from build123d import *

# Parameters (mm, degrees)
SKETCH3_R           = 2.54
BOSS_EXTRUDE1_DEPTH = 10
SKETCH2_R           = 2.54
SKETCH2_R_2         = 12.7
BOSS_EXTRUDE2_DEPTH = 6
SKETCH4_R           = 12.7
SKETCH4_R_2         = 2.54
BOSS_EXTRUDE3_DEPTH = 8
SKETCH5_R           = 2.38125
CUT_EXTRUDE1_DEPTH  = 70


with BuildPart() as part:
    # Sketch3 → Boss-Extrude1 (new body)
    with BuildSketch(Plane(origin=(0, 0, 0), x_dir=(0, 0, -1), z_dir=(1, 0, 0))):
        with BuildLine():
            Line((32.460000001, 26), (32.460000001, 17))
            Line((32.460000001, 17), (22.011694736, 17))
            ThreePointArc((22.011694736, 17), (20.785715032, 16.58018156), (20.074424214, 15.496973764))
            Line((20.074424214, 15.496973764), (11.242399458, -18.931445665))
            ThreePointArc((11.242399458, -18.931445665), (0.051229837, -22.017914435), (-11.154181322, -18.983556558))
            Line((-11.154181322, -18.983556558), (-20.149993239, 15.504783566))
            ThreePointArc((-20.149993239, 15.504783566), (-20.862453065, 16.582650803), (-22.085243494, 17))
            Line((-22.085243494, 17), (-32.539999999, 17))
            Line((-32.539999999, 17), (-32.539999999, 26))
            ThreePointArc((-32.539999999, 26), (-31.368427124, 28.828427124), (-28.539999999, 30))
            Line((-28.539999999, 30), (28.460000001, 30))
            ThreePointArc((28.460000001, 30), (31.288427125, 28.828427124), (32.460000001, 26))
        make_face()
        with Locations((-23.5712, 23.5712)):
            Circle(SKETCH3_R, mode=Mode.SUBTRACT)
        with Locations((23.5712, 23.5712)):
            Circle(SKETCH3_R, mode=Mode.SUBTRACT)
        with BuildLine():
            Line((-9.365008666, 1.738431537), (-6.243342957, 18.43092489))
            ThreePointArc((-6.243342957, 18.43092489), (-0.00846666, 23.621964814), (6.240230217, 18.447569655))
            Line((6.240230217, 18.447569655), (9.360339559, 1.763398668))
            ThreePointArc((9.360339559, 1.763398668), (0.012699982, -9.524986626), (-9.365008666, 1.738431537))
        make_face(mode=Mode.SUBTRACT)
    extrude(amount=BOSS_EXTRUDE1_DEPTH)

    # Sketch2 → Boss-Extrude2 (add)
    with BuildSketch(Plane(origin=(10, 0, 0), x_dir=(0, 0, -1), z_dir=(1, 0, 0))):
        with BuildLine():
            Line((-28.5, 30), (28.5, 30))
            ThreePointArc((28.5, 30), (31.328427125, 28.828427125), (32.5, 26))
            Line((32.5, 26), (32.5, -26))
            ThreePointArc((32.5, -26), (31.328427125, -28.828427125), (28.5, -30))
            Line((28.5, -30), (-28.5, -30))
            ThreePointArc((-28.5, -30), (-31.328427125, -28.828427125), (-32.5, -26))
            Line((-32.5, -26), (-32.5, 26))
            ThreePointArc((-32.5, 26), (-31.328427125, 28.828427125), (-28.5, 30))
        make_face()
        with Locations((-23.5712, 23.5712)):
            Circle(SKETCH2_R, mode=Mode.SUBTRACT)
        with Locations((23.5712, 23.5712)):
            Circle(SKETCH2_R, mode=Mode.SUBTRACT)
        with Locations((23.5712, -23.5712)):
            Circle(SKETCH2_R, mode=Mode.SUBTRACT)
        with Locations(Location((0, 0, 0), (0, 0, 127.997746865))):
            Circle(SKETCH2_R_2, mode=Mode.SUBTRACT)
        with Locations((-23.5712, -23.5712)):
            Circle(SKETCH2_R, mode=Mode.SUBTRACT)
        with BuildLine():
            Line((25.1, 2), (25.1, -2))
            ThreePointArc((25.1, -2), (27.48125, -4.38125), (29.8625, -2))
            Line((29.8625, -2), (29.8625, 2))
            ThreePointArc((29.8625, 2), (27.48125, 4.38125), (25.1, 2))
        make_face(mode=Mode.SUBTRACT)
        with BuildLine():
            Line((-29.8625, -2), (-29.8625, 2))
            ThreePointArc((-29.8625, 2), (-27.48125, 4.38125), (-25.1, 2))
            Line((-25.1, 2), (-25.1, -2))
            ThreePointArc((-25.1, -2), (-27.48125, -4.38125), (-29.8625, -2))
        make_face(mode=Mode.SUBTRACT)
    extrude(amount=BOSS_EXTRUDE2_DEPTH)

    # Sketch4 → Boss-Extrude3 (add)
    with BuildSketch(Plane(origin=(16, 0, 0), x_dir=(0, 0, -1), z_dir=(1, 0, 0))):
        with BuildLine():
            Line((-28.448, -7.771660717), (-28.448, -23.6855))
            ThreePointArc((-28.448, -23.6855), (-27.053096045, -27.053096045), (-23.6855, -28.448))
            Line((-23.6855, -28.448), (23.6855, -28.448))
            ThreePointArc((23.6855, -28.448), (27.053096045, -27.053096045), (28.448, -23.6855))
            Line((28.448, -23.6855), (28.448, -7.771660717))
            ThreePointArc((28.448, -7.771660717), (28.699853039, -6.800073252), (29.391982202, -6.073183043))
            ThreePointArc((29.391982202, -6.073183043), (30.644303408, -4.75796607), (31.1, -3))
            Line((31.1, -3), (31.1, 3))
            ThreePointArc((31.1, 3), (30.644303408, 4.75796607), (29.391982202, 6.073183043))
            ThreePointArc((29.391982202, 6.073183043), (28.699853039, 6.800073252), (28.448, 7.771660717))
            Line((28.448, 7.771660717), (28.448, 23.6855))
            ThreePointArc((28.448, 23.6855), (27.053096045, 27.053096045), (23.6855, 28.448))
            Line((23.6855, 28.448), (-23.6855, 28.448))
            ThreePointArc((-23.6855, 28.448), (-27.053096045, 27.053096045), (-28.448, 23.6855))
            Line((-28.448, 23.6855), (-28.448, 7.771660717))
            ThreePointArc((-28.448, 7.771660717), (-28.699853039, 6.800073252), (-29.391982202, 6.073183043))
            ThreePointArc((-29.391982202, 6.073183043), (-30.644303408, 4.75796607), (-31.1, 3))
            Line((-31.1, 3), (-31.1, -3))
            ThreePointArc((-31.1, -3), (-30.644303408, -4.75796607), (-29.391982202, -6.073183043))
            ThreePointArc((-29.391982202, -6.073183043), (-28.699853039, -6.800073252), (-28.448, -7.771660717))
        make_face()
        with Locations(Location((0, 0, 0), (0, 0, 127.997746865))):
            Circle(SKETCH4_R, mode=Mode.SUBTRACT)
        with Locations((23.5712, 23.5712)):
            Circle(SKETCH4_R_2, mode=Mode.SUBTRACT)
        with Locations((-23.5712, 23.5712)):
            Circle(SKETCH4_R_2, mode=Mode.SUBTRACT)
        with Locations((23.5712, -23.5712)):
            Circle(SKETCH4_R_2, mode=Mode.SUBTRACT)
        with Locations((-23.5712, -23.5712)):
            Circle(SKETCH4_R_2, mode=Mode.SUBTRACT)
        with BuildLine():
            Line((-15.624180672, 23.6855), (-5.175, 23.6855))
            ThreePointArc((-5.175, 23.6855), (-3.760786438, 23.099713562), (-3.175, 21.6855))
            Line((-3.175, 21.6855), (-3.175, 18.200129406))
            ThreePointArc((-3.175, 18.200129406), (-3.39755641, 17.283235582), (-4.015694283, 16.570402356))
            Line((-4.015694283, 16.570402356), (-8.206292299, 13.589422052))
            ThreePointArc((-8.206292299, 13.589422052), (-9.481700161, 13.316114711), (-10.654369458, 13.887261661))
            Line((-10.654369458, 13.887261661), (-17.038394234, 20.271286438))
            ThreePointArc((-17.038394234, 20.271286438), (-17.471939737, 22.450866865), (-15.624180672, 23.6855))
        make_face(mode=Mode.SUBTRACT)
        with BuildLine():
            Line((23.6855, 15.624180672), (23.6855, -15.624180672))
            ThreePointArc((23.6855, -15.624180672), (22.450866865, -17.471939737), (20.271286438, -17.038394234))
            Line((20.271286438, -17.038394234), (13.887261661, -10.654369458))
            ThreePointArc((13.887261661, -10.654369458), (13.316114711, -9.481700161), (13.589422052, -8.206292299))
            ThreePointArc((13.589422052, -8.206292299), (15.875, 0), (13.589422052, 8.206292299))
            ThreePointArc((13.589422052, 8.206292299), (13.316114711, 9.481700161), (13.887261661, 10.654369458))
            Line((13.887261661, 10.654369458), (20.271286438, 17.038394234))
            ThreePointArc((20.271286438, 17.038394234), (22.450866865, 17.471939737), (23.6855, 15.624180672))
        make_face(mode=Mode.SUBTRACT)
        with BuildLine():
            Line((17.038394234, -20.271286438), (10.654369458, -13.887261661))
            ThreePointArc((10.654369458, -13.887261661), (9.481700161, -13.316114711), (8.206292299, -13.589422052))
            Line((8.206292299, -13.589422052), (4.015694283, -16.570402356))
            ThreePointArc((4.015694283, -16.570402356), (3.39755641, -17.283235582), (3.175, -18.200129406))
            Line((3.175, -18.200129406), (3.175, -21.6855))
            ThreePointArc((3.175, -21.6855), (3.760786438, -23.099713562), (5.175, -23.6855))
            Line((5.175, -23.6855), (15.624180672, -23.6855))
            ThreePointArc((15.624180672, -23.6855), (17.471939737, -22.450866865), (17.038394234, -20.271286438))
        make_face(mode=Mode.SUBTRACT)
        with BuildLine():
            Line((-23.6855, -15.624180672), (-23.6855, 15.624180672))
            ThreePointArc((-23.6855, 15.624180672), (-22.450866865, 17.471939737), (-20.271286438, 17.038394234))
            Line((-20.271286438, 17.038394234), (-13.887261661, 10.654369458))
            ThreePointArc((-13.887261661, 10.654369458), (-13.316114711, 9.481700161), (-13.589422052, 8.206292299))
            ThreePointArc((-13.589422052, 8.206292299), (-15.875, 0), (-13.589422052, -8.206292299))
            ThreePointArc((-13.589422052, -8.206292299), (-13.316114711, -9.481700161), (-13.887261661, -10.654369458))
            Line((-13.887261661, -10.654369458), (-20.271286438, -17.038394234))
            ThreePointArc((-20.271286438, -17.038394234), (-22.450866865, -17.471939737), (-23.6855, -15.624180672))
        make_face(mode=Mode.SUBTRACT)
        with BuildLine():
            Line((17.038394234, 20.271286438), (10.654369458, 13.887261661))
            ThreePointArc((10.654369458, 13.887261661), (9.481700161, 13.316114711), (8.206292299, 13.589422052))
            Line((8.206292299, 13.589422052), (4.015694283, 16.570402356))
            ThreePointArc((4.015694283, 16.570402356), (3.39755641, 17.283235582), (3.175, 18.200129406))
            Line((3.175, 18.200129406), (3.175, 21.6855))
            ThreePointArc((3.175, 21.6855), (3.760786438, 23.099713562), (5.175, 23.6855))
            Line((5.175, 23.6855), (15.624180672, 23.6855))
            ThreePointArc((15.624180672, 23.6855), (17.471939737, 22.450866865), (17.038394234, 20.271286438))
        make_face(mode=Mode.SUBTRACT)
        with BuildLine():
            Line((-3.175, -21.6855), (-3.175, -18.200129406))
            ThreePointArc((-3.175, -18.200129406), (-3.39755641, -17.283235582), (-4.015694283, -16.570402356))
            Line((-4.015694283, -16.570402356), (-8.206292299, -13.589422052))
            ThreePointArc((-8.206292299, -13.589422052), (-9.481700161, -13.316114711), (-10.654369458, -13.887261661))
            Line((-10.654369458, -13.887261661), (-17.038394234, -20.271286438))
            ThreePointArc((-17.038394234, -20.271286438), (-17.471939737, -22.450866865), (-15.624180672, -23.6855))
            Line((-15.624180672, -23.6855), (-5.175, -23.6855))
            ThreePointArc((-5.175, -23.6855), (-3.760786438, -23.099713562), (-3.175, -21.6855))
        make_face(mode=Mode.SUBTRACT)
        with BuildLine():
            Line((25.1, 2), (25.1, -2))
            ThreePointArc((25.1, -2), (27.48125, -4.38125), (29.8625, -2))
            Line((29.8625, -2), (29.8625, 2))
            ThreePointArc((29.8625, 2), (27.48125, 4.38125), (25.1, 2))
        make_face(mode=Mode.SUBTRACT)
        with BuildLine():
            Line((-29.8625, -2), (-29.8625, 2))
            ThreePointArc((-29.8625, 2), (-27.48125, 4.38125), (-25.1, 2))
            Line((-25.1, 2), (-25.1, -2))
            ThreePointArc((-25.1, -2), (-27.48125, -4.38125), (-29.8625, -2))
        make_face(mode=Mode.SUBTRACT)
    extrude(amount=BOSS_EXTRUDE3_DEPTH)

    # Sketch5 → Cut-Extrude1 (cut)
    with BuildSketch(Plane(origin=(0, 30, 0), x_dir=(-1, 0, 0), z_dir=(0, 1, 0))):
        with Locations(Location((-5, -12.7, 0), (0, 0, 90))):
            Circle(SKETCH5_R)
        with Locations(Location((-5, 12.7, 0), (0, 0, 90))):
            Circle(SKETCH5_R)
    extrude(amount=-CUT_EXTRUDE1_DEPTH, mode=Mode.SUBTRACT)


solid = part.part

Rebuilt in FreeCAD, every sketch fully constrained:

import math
import FreeCAD as App
import Part
import Sketcher
Q = App.Units.Quantity

doc = App.newDocument("Part")
body = doc.addObject("PartDesign::Body", "Body")

# Sketch on YZ plane
sketch1 = body.newObject("Sketcher::SketchObject", "Sketch")
sketch1.AttachmentSupport = (doc.getObject("YZ_Plane"), [""])
sketch1.MapMode = "FlatFace"
sketch1.addGeometry([
    Part.LineSegment(App.Vector(17, -32.5, 0), App.Vector(26, -32.5, 0)),  # 0
    Part.ArcOfCircle(Part.Circle(App.Vector(26, -28.5, 0), App.Vector(0, 0, 1), 4), math.radians(-90), math.radians(0)),  # 1
    Part.LineSegment(App.Vector(30, -28.5, 0), App.Vector(30, 28.5, 0)),  # 2
    Part.ArcOfCircle(Part.Circle(App.Vector(26, 28.5, 0), App.Vector(0, 0, 1), 4), math.radians(0), math.radians(90)),  # 3
    Part.LineSegment(App.Vector(26, 32.5, 0), App.Vector(17, 32.5, 0)),  # 4
    Part.LineSegment(App.Vector(17, 32.5, 0), App.Vector(17, 22.1, 0)),  # 5
    Part.ArcOfCircle(Part.Circle(App.Vector(15, 22.1, 0), App.Vector(0, 0, 1), 2), math.radians(-75), math.radians(0)),  # 6
    Part.LineSegment(App.Vector(15.5, 20.1, 0), App.Vector(-19, 11.2, 0)),  # 7
    Part.ArcOfCircle(Part.Circle(App.Vector(0, 0, 0), App.Vector(0, 0, 1), 22), math.radians(150), math.radians(211)),  # 8
    Part.LineSegment(App.Vector(-18.9, -11.2, 0), App.Vector(15.5, -20.1, 0)),  # 9
    Part.ArcOfCircle(Part.Circle(App.Vector(15, -22, 0), App.Vector(0, 0, 1), 2), math.radians(0), math.radians(76)),  # 10
    Part.LineSegment(App.Vector(17, -22, 0), App.Vector(17, -32.5, 0)),  # 11
    Part.LineSegment(App.Vector(1.7, 9.4, 0), App.Vector(18.4, 6.2, 0)),  # 12
    Part.ArcOfCircle(Part.Circle(App.Vector(17.3, 0, 0), App.Vector(0, 0, 1), 6.4), math.radians(-79), math.radians(79)),  # 13
    Part.LineSegment(App.Vector(18.4, -6.2, 0), App.Vector(1.8, -9.4, 0)),  # 14
    Part.ArcOfCircle(Part.Circle(App.Vector(0, 0, 0), App.Vector(0, 0, 1), 9.5), math.radians(79), math.radians(281)),  # 15
    Part.Circle(App.Vector(23.6, -23.6, 0), App.Vector(0, 0, 1), 2.5),  # 16
    Part.Circle(App.Vector(23.6, 23.6, 0), App.Vector(0, 0, 1), 2.5),  # 17
], False)
sketch1.addConstraint([
    Sketcher.Constraint("Tangent", 0, 2, 1, 1),
    Sketcher.Constraint("Tangent", 1, 2, 2, 1),
    Sketcher.Constraint("Tangent", 2, 2, 3, 1),
    Sketcher.Constraint("Tangent", 3, 2, 4, 1),
    Sketcher.Constraint("Coincident", 4, 2, 5, 1),
    Sketcher.Constraint("Tangent", 5, 2, 6, 2),
    Sketcher.Constraint("Tangent", 6, 1, 7, 1),
    Sketcher.Constraint("Coincident", 7, 2, 8, 1),
    Sketcher.Constraint("Coincident", 8, 2, 9, 1),
    Sketcher.Constraint("Tangent", 9, 2, 10, 2),
    Sketcher.Constraint("Tangent", 10, 1, 11, 1),
    Sketcher.Constraint("Coincident", 11, 2, 0, 1),
    Sketcher.Constraint("Coincident", 12, 2, 13, 2),
    Sketcher.Constraint("Coincident", 13, 1, 14, 1),
    Sketcher.Constraint("Coincident", 14, 2, 15, 2),
    Sketcher.Constraint("Coincident", 15, 1, 12, 1),
    Sketcher.Constraint("Horizontal", 0),
    Sketcher.Constraint("Vertical", 2),
    Sketcher.Constraint("Horizontal", 4),
    Sketcher.Constraint("Vertical", 5),
    Sketcher.Constraint("Vertical", 11),
    Sketcher.Constraint("Coincident", 8, 3, -1, 1),
    Sketcher.Constraint("Coincident", 15, 3, -1, 1),
    Sketcher.Constraint("Equal", 1, 3),
    Sketcher.Constraint("Equal", 6, 10),
    Sketcher.Constraint("Equal", 16, 17),
    Sketcher.Constraint("Symmetric", 16, 3, 17, 3, -1),
    Sketcher.Constraint("PointOnObject", 13, 3, -1),
    Sketcher.Constraint("Vertical", 6, 3, 10, 3),
    Sketcher.Constraint("Radius", 1, Q("4 mm")),
    Sketcher.Constraint("Radius", 6, Q("2 mm")),
    Sketcher.Constraint("Diameter", 16, Q("5.08 mm")),
    Sketcher.Constraint("DistanceX", 0, 1, 0, 2, Q("9 mm")),
    Sketcher.Constraint("DistanceY", 2, 1, 2, 2, Q("57 mm")),
    Sketcher.Constraint("Radius", 13, Q("6.350001 mm")),
    Sketcher.Constraint("DistanceX", -1, 1, 1, 3, Q("26 mm")),
    Sketcher.Constraint("DistanceY", 1, 3, -1, 1, Q("28.46 mm")),
    Sketcher.Constraint("Radius", 8, Q("22.017974 mm")),
    Sketcher.Constraint("Radius", 15, Q("9.524995 mm")),
    Sketcher.Constraint("DistanceX", -1, 1, 16, 3, Q("23.5712 mm")),
    Sketcher.Constraint("DistanceY", 16, 3, -1, 1, Q("23.5712 mm")),
    Sketcher.Constraint("DistanceY", 8, 2, -1, 1, Q("11.242399 mm")),
    Sketcher.Constraint("DistanceX", -1, 1, 14, 2, Q("1.763399 mm")),
    Sketcher.Constraint("DistanceY", 12, 2, 5, 2, Q("15.841901 mm")),
    Sketcher.Constraint("DistanceX", 13, 3, 13, 1, Q("1.1756 mm")),
    Sketcher.Constraint("Distance", 14, Q("16.97341 mm")),
    Sketcher.Constraint("DistanceY", 5, 2, 5, 1, Q("10.454757 mm")),
    Sketcher.Constraint("DistanceY", 11, 2, 11, 1, Q("10.448305 mm")),
    Sketcher.Constraint("DistanceY", -1, 1, 7, 2, Q("11.154181 mm")),
    Sketcher.Constraint("DistanceX", -1, 1, 15, 1, Q("1.738432 mm")),
])
pad1 = body.newObject("PartDesign::Pad", "Pad")
pad1.Profile = sketch1
pad1.Length = 10

# Sketch on YZ plane
sketch2 = body.newObject("Sketcher::SketchObject", "Sketch001")
sketch2.AttachmentSupport = (doc.getObject("YZ_Plane"), [""])
sketch2.MapMode = "FlatFace"
sketch2.AttachmentOffset = App.Placement(App.Vector(0, 0, 10), App.Rotation())
sketch2.addGeometry([
    Part.LineSegment(App.Vector(30, -28.5, 0), App.Vector(30, 28.5, 0)),  # 0
    Part.ArcOfCircle(Part.Circle(App.Vector(26, 28.5, 0), App.Vector(0, 0, 1), 4), math.radians(0), math.radians(90)),  # 1
    Part.LineSegment(App.Vector(26, 32.5, 0), App.Vector(-26, 32.5, 0)),  # 2
    Part.ArcOfCircle(Part.Circle(App.Vector(-26, 28.5, 0), App.Vector(0, 0, 1), 4), math.radians(90), math.radians(180)),  # 3
    Part.LineSegment(App.Vector(-30, 28.5, 0), App.Vector(-30, -28.5, 0)),  # 4
    Part.ArcOfCircle(Part.Circle(App.Vector(-26, -28.5, 0), App.Vector(0, 0, 1), 4), math.radians(180), math.radians(270)),  # 5
    Part.LineSegment(App.Vector(-26, -32.5, 0), App.Vector(26, -32.5, 0)),  # 6
    Part.ArcOfCircle(Part.Circle(App.Vector(26, -28.5, 0), App.Vector(0, 0, 1), 4), math.radians(-90), math.radians(0)),  # 7
    Part.Circle(App.Vector(-23.6, -23.6, 0), App.Vector(0, 0, 1), 2.5),  # 8
    Part.ArcOfCircle(Part.Circle(App.Vector(2, -27.5, 0), App.Vector(0, 0, 1), 2.4), math.radians(-90), math.radians(90)),  # 9
    Part.LineSegment(App.Vector(2, -29.9, 0), App.Vector(-2, -29.9, 0)),  # 10
    Part.ArcOfCircle(Part.Circle(App.Vector(-2, -27.5, 0), App.Vector(0, 0, 1), 2.4), math.radians(90), math.radians(270)),  # 11
    Part.LineSegment(App.Vector(-2, -25.1, 0), App.Vector(2, -25.1, 0)),  # 12
    Part.Circle(App.Vector(0, 0, 0), App.Vector(0, 0, 1), 12.7),  # 13
    Part.Circle(App.Vector(-23.6, 23.6, 0), App.Vector(0, 0, 1), 2.5),  # 14
    Part.LineSegment(App.Vector(-2, 29.9, 0), App.Vector(2, 29.9, 0)),  # 15
    Part.ArcOfCircle(Part.Circle(App.Vector(2, 27.5, 0), App.Vector(0, 0, 1), 2.4), math.radians(-90), math.radians(90)),  # 16
    Part.LineSegment(App.Vector(2, 25.1, 0), App.Vector(-2, 25.1, 0)),  # 17
    Part.ArcOfCircle(Part.Circle(App.Vector(-2, 27.5, 0), App.Vector(0, 0, 1), 2.4), math.radians(90), math.radians(270)),  # 18
    Part.Circle(App.Vector(23.6, -23.6, 0), App.Vector(0, 0, 1), 2.5),  # 19
    Part.Circle(App.Vector(23.6, 23.6, 0), App.Vector(0, 0, 1), 2.5),  # 20
], False)
sketch2.addConstraint([
    Sketcher.Constraint("Tangent", 0, 2, 1, 1),
    Sketcher.Constraint("Tangent", 1, 2, 2, 1),
    Sketcher.Constraint("Tangent", 2, 2, 3, 1),
    Sketcher.Constraint("Tangent", 3, 2, 4, 1),
    Sketcher.Constraint("Tangent", 4, 2, 5, 1),
    Sketcher.Constraint("Tangent", 5, 2, 6, 1),
    Sketcher.Constraint("Tangent", 6, 2, 7, 1),
    Sketcher.Constraint("Tangent", 7, 2, 0, 1),
    Sketcher.Constraint("Tangent", 9, 1, 10, 1),
    Sketcher.Constraint("Tangent", 10, 2, 11, 2),
    Sketcher.Constraint("Tangent", 11, 1, 12, 1),
    Sketcher.Constraint("Tangent", 12, 2, 9, 2),
    Sketcher.Constraint("Tangent", 15, 2, 16, 2),
    Sketcher.Constraint("Tangent", 16, 1, 17, 1),
    Sketcher.Constraint("Tangent", 17, 2, 18, 2),
    Sketcher.Constraint("Tangent", 18, 1, 15, 1),
    Sketcher.Constraint("Vertical", 0),
    Sketcher.Constraint("Horizontal", 2),
    Sketcher.Constraint("Vertical", 4),
    Sketcher.Constraint("Horizontal", 6),
    Sketcher.Constraint("Horizontal", 10),
    Sketcher.Constraint("Horizontal", 12),
    Sketcher.Constraint("Horizontal", 15),
    Sketcher.Constraint("Horizontal", 17),
    Sketcher.Constraint("Coincident", 13, 3, -1, 1),
    Sketcher.Constraint("Equal", 1, 3),
    Sketcher.Constraint("Equal", 3, 5),
    Sketcher.Constraint("Equal", 5, 7),
    Sketcher.Constraint("Equal", 8, 14),
    Sketcher.Constraint("Equal", 11, 16),
    Sketcher.Constraint("Equal", 14, 19),
    Sketcher.Constraint("Equal", 19, 20),
    Sketcher.Constraint("Symmetric", 1, 3, 5, 3, -1, 1),
    Sketcher.Constraint("Symmetric", 11, 3, 16, 3, -1, 1),
    Sketcher.Constraint("Symmetric", 14, 3, 19, 3, -1, 1),
    Sketcher.Constraint("Symmetric", 8, 3, 20, 3, -1, 1),
    Sketcher.Constraint("Symmetric", 8, 3, 19, 3, -2),
    Sketcher.Constraint("Vertical", 9, 3, 16, 3),
    Sketcher.Constraint("Vertical", 11, 3, 18, 3),
    Sketcher.Constraint("Radius", 1, Q("4 mm")),
    Sketcher.Constraint("Diameter", 13, Q("25.4 mm")),
    Sketcher.Constraint("Diameter", 8, Q("5.08 mm")),
    Sketcher.Constraint("DistanceX", 2, 2, 2, 1, Q("52 mm")),
    Sketcher.Constraint("DistanceX", 10, 2, 10, 1, Q("4 mm")),
    Sketcher.Constraint("DistanceY", 0, 1, 0, 2, Q("57 mm")),
    Sketcher.Constraint("DistanceY", 11, 1, -1, 1, Q("25.1 mm")),
    Sketcher.Constraint("Radius", 9, Q("2.38125 mm")),
    Sketcher.Constraint("DistanceX", 8, 3, -1, 1, Q("23.5712 mm")),
    Sketcher.Constraint("DistanceY", 8, 3, -1, 1, Q("23.5712 mm")),
])
pad2 = body.newObject("PartDesign::Pad", "Pad001")
pad2.Profile = sketch2
pad2.Length = 6

# Sketch on YZ plane
sketch3 = body.newObject("Sketcher::SketchObject", "Sketch002")
sketch3.AttachmentSupport = (doc.getObject("YZ_Plane"), [""])
sketch3.MapMode = "FlatFace"
sketch3.AttachmentOffset = App.Placement(App.Vector(0, 0, 16), App.Rotation())
sketch3.addGeometry([
    Part.LineSegment(App.Vector(-7.8, 28.4, 0), App.Vector(-23.7, 28.4, 0)),  # 0
    Part.ArcOfCircle(Part.Circle(App.Vector(-23.7, 23.7, 0), App.Vector(0, 0, 1), 4.8), math.radians(90), math.radians(180)),  # 1
    Part.LineSegment(App.Vector(-28.4, 23.7, 0), App.Vector(-28.4, -23.7, 0)),  # 2
    Part.ArcOfCircle(Part.Circle(App.Vector(-23.7, -23.7, 0), App.Vector(0, 0, 1), 4.8), math.radians(-180), math.radians(-90)),  # 3
    Part.LineSegment(App.Vector(-23.7, -28.4, 0), App.Vector(-7.8, -28.4, 0)),  # 4
    Part.ArcOfCircle(Part.Circle(App.Vector(-7.8, -30.4, 0), App.Vector(0, 0, 1), 2), math.radians(32), math.radians(90)),  # 5
    Part.ArcOfCircle(Part.Circle(App.Vector(-3, -27.5, 0), App.Vector(0, 0, 1), 3.6), math.radians(-148), math.radians(-90)),  # 6
    Part.LineSegment(App.Vector(-3, -31.1, 0), App.Vector(3, -31.1, 0)),  # 7
    Part.ArcOfCircle(Part.Circle(App.Vector(3, -27.5, 0), App.Vector(0, 0, 1), 3.6), math.radians(-90), math.radians(-32)),  # 8
    Part.ArcOfCircle(Part.Circle(App.Vector(7.8, -30.4, 0), App.Vector(0, 0, 1), 2), math.radians(90), math.radians(148)),  # 9
    Part.LineSegment(App.Vector(7.8, -28.4, 0), App.Vector(23.7, -28.4, 0)),  # 10
    Part.ArcOfCircle(Part.Circle(App.Vector(23.7, -23.7, 0), App.Vector(0, 0, 1), 4.8), math.radians(-90), math.radians(0)),  # 11
    Part.LineSegment(App.Vector(28.4, -23.7, 0), App.Vector(28.4, 23.7, 0)),  # 12
    Part.ArcOfCircle(Part.Circle(App.Vector(23.7, 23.7, 0), App.Vector(0, 0, 1), 4.8), math.radians(0), math.radians(90)),  # 13
    Part.LineSegment(App.Vector(23.7, 28.4, 0), App.Vector(7.8, 28.4, 0)),  # 14
    Part.ArcOfCircle(Part.Circle(App.Vector(7.8, 30.4, 0), App.Vector(0, 0, 1), 2), math.radians(-148), math.radians(-90)),  # 15
    Part.ArcOfCircle(Part.Circle(App.Vector(3, 27.5, 0), App.Vector(0, 0, 1), 3.6), math.radians(32), math.radians(90)),  # 16
    Part.LineSegment(App.Vector(3, 31.1, 0), App.Vector(-3, 31.1, 0)),  # 17
    Part.ArcOfCircle(Part.Circle(App.Vector(-3, 27.5, 0), App.Vector(0, 0, 1), 3.6), math.radians(90), math.radians(148)),  # 18
    Part.ArcOfCircle(Part.Circle(App.Vector(-7.8, 30.4, 0), App.Vector(0, 0, 1), 2), math.radians(-90), math.radians(-32)),  # 19
    Part.Circle(App.Vector(-23.6, 23.6, 0), App.Vector(0, 0, 1), 2.5),  # 20
    Part.LineSegment(App.Vector(-18.2, 3.2, 0), App.Vector(-21.7, 3.2, 0)),  # 21
    Part.ArcOfCircle(Part.Circle(App.Vector(-21.7, 5.2, 0), App.Vector(0, 0, 1), 2), math.radians(-180), math.radians(-90)),  # 22
    Part.LineSegment(App.Vector(-23.7, 5.2, 0), App.Vector(-23.7, 15.6, 0)),  # 23
    Part.ArcOfCircle(Part.Circle(App.Vector(-21.7, 15.6, 0), App.Vector(0, 0, 1), 2), math.radians(45), math.radians(180)),  # 24
    Part.LineSegment(App.Vector(-20.3, 17, 0), App.Vector(-13.9, 10.7, 0)),  # 25
    Part.ArcOfCircle(Part.Circle(App.Vector(-15.3, 9.2, 0), App.Vector(0, 0, 1), 2), math.radians(-31), math.radians(45)),  # 26
    Part.LineSegment(App.Vector(-13.6, 8.2, 0), App.Vector(-16.6, 4, 0)),  # 27
    Part.ArcOfCircle(Part.Circle(App.Vector(-18.2, 5.2, 0), App.Vector(0, 0, 1), 2), math.radians(-90), math.radians(-35)),  # 28
    Part.ArcOfCircle(Part.Circle(App.Vector(-2, 27.5, 0), App.Vector(0, 0, 1), 2.4), math.radians(90), math.radians(270)),  # 29
    Part.LineSegment(App.Vector(-2, 29.9, 0), App.Vector(2, 29.9, 0)),  # 30
    Part.ArcOfCircle(Part.Circle(App.Vector(2, 27.5, 0), App.Vector(0, 0, 1), 2.4), math.radians(-90), math.radians(90)),  # 31
    Part.LineSegment(App.Vector(2, 25.1, 0), App.Vector(-2, 25.1, 0)),  # 32
    Part.ArcOfCircle(Part.Circle(App.Vector(-15.6, 21.7, 0), App.Vector(0, 0, 1), 2), math.radians(90), math.radians(225)),  # 33
    Part.LineSegment(App.Vector(-15.6, 23.7, 0), App.Vector(15.6, 23.7, 0)),  # 34
    Part.ArcOfCircle(Part.Circle(App.Vector(15.6, 21.7, 0), App.Vector(0, 0, 1), 2), math.radians(-45), math.radians(90)),  # 35
    Part.LineSegment(App.Vector(17, 20.3, 0), App.Vector(10.7, 13.9, 0)),  # 36
    Part.ArcOfCircle(Part.Circle(App.Vector(9.2, 15.3, 0), App.Vector(0, 0, 1), 2), math.radians(-121), math.radians(-45)),  # 37
    Part.ArcOfCircle(Part.Circle(App.Vector(0, 0, 0), App.Vector(0, 0, 1), 15.9), math.radians(59), math.radians(121)),  # 38
    Part.ArcOfCircle(Part.Circle(App.Vector(-9.2, 15.3, 0), App.Vector(0, 0, 1), 2), math.radians(-135), math.radians(-59)),  # 39
    Part.LineSegment(App.Vector(-10.7, 13.9, 0), App.Vector(-17, 20.3, 0)),  # 40
    Part.Circle(App.Vector(0, 0, 0), App.Vector(0, 0, 1), 12.7),  # 41
    Part.LineSegment(App.Vector(-13.9, -10.7, 0), App.Vector(-20.3, -17, 0)),  # 42
    Part.ArcOfCircle(Part.Circle(App.Vector(-21.7, -15.6, 0), App.Vector(0, 0, 1), 2), math.radians(180), math.radians(315)),  # 43
    Part.LineSegment(App.Vector(-23.7, -15.6, 0), App.Vector(-23.7, -5.2, 0)),  # 44
    Part.ArcOfCircle(Part.Circle(App.Vector(-21.7, -5.2, 0), App.Vector(0, 0, 1), 2), math.radians(90), math.radians(180)),  # 45
    Part.LineSegment(App.Vector(-21.7, -3.2, 0), App.Vector(-18.2, -3.2, 0)),  # 46
    Part.ArcOfCircle(Part.Circle(App.Vector(-18.2, -5.2, 0), App.Vector(0, 0, 1), 2), math.radians(35), math.radians(90)),  # 47
    Part.LineSegment(App.Vector(-16.6, -4, 0), App.Vector(-13.6, -8.2, 0)),  # 48
    Part.ArcOfCircle(Part.Circle(App.Vector(-15.3, -9.2, 0), App.Vector(0, 0, 1), 2), math.radians(-45), math.radians(31)),  # 49
    Part.Circle(App.Vector(-23.6, -23.6, 0), App.Vector(0, 0, 1), 2.5),  # 50
    Part.ArcOfCircle(Part.Circle(App.Vector(15.6, -21.7, 0), App.Vector(0, 0, 1), 2), math.radians(-90), math.radians(45)),  # 51
    Part.LineSegment(App.Vector(15.6, -23.7, 0), App.Vector(-15.6, -23.7, 0)),  # 52
    Part.ArcOfCircle(Part.Circle(App.Vector(-15.6, -21.7, 0), App.Vector(0, 0, 1), 2), math.radians(135), math.radians(270)),  # 53
    Part.LineSegment(App.Vector(-17, -20.3, 0), App.Vector(-10.7, -13.9, 0)),  # 54
    Part.ArcOfCircle(Part.Circle(App.Vector(-9.2, -15.3, 0), App.Vector(0, 0, 1), 2), math.radians(59), math.radians(135)),  # 55
    Part.ArcOfCircle(Part.Circle(App.Vector(0, 0, 0), App.Vector(0, 0, 1), 15.9), math.radians(-121), math.radians(-59)),  # 56
    Part.ArcOfCircle(Part.Circle(App.Vector(9.2, -15.3, 0), App.Vector(0, 0, 1), 2), math.radians(45), math.radians(121)),  # 57
    Part.LineSegment(App.Vector(10.7, -13.9, 0), App.Vector(17, -20.3, 0)),  # 58
    Part.LineSegment(App.Vector(-2, -25.1, 0), App.Vector(2, -25.1, 0)),  # 59
    Part.ArcOfCircle(Part.Circle(App.Vector(2, -27.5, 0), App.Vector(0, 0, 1), 2.4), math.radians(-90), math.radians(90)),  # 60
    Part.LineSegment(App.Vector(2, -29.9, 0), App.Vector(-2, -29.9, 0)),  # 61
    Part.ArcOfCircle(Part.Circle(App.Vector(-2, -27.5, 0), App.Vector(0, 0, 1), 2.4), math.radians(90), math.radians(270)),  # 62
    Part.Circle(App.Vector(23.6, 23.6, 0), App.Vector(0, 0, 1), 2.5),  # 63
    Part.ArcOfCircle(Part.Circle(App.Vector(21.7, 15.6, 0), App.Vector(0, 0, 1), 2), math.radians(0), math.radians(135)),  # 64
    Part.LineSegment(App.Vector(23.7, 15.6, 0), App.Vector(23.7, 5.2, 0)),  # 65
    Part.ArcOfCircle(Part.Circle(App.Vector(21.7, 5.2, 0), App.Vector(0, 0, 1), 2), math.radians(-90), math.radians(0)),  # 66
    Part.LineSegment(App.Vector(21.7, 3.2, 0), App.Vector(18.2, 3.2, 0)),  # 67
    Part.ArcOfCircle(Part.Circle(App.Vector(18.2, 5.2, 0), App.Vector(0, 0, 1), 2), math.radians(-145), math.radians(-90)),  # 68
    Part.LineSegment(App.Vector(16.6, 4, 0), App.Vector(13.6, 8.2, 0)),  # 69
    Part.ArcOfCircle(Part.Circle(App.Vector(15.3, 9.2, 0), App.Vector(0, 0, 1), 2), math.radians(135), math.radians(211)),  # 70
    Part.LineSegment(App.Vector(13.9, 10.7, 0), App.Vector(20.3, 17, 0)),  # 71
    Part.ArcOfCircle(Part.Circle(App.Vector(21.7, -15.6, 0), App.Vector(0, 0, 1), 2), math.radians(-135), math.radians(0)),  # 72
    Part.LineSegment(App.Vector(20.3, -17, 0), App.Vector(13.9, -10.7, 0)),  # 73
    Part.ArcOfCircle(Part.Circle(App.Vector(15.3, -9.2, 0), App.Vector(0, 0, 1), 2), math.radians(149), math.radians(225)),  # 74
    Part.LineSegment(App.Vector(13.6, -8.2, 0), App.Vector(16.6, -4, 0)),  # 75
    Part.ArcOfCircle(Part.Circle(App.Vector(18.2, -5.2, 0), App.Vector(0, 0, 1), 2), math.radians(90), math.radians(145)),  # 76
    Part.LineSegment(App.Vector(18.2, -3.2, 0), App.Vector(21.7, -3.2, 0)),  # 77
    Part.ArcOfCircle(Part.Circle(App.Vector(21.7, -5.2, 0), App.Vector(0, 0, 1), 2), math.radians(0), math.radians(90)),  # 78
    Part.LineSegment(App.Vector(23.7, -5.2, 0), App.Vector(23.7, -15.6, 0)),  # 79
    Part.Circle(App.Vector(23.6, -23.6, 0), App.Vector(0, 0, 1), 2.5),  # 80
], False)
sketch3.addConstraint([
    Sketcher.Constraint("Tangent", 0, 2, 1, 1),
    Sketcher.Constraint("Tangent", 1, 2, 2, 1),
    Sketcher.Constraint("Tangent", 2, 2, 3, 1),
    Sketcher.Constraint("Tangent", 3, 2, 4, 1),
    Sketcher.Constraint("Tangent", 4, 2, 5, 2),
    Sketcher.Constraint("Tangent", 5, 1, 6, 1),
    Sketcher.Constraint("Tangent", 6, 2, 7, 1),
    Sketcher.Constraint("Tangent", 7, 2, 8, 1),
    Sketcher.Constraint("Tangent", 8, 2, 9, 2),
    Sketcher.Constraint("Tangent", 9, 1, 10, 1),
    Sketcher.Constraint("Tangent", 10, 2, 11, 1),
    Sketcher.Constraint("Tangent", 11, 2, 12, 1),
    Sketcher.Constraint("Tangent", 12, 2, 13, 1),
    Sketcher.Constraint("Tangent", 13, 2, 14, 1),
    Sketcher.Constraint("Tangent", 14, 2, 15, 2),
    Sketcher.Constraint("Tangent", 15, 1, 16, 1),
    Sketcher.Constraint("Tangent", 16, 2, 17, 1),
    Sketcher.Constraint("Tangent", 17, 2, 18, 1),
    Sketcher.Constraint("Tangent", 18, 2, 19, 2),
    Sketcher.Constraint("Tangent", 19, 1, 0, 1),
    Sketcher.Constraint("Tangent", 21, 2, 22, 2),
    Sketcher.Constraint("Tangent", 22, 1, 23, 1),
    Sketcher.Constraint("Tangent", 23, 2, 24, 2),
    Sketcher.Constraint("Tangent", 24, 1, 25, 1),
    Sketcher.Constraint("Tangent", 25, 2, 26, 2),
    Sketcher.Constraint("Coincident", 26, 1, 27, 1),
    Sketcher.Constraint("Tangent", 27, 2, 28, 2),
    Sketcher.Constraint("Tangent", 28, 1, 21, 1),
    Sketcher.Constraint("Tangent", 29, 1, 30, 1),
    Sketcher.Constraint("Tangent", 30, 2, 31, 2),
    Sketcher.Constraint("Tangent", 31, 1, 32, 1),
    Sketcher.Constraint("Tangent", 32, 2, 29, 2),
    Sketcher.Constraint("Tangent", 33, 1, 34, 1),
    Sketcher.Constraint("Tangent", 34, 2, 35, 2),
    Sketcher.Constraint("Tangent", 35, 1, 36, 1),
    Sketcher.Constraint("Tangent", 36, 2, 37, 2),
    Sketcher.Constraint("Tangent", 37, 1, 38, 1),
    Sketcher.Constraint("Tangent", 38, 2, 39, 2),
    Sketcher.Constraint("Tangent", 39, 1, 40, 1),
    Sketcher.Constraint("Tangent", 40, 2, 33, 2),
    Sketcher.Constraint("Tangent", 42, 2, 43, 2),
    Sketcher.Constraint("Tangent", 43, 1, 44, 1),
    Sketcher.Constraint("Tangent", 44, 2, 45, 2),
    Sketcher.Constraint("Tangent", 45, 1, 46, 1),
    Sketcher.Constraint("Tangent", 46, 2, 47, 2),
    Sketcher.Constraint("Tangent", 47, 1, 48, 1),
    Sketcher.Constraint("Coincident", 48, 2, 49, 2),
    Sketcher.Constraint("Tangent", 49, 1, 42, 1),
    Sketcher.Constraint("Tangent", 51, 1, 52, 1),
    Sketcher.Constraint("Tangent", 52, 2, 53, 2),
    Sketcher.Constraint("Tangent", 53, 1, 54, 1),
    Sketcher.Constraint("Tangent", 54, 2, 55, 2),
    Sketcher.Constraint("Tangent", 55, 1, 56, 1),
    Sketcher.Constraint("Tangent", 56, 2, 57, 2),
    Sketcher.Constraint("Tangent", 57, 1, 58, 1),
    Sketcher.Constraint("Tangent", 58, 2, 51, 2),
    Sketcher.Constraint("Tangent", 59, 2, 60, 2),
    Sketcher.Constraint("Tangent", 60, 1, 61, 1),
    Sketcher.Constraint("Tangent", 61, 2, 62, 2),
    Sketcher.Constraint("Tangent", 62, 1, 59, 1),
    Sketcher.Constraint("Tangent", 64, 1, 65, 1),
    Sketcher.Constraint("Tangent", 65, 2, 66, 2),
    Sketcher.Constraint("Tangent", 66, 1, 67, 1),
    Sketcher.Constraint("Tangent", 67, 2, 68, 2),
    Sketcher.Constraint("Tangent", 68, 1, 69, 1),
    Sketcher.Constraint("Coincident", 69, 2, 70, 2),
    Sketcher.Constraint("Tangent", 70, 1, 71, 1),
    Sketcher.Constraint("Tangent", 71, 2, 64, 2),
    Sketcher.Constraint("Tangent", 72, 1, 73, 1),
    Sketcher.Constraint("Tangent", 73, 2, 74, 2),
    Sketcher.Constraint("Coincident", 74, 1, 75, 1),
    Sketcher.Constraint("Tangent", 75, 2, 76, 2),
    Sketcher.Constraint("Tangent", 76, 1, 77, 1),
    Sketcher.Constraint("Tangent", 77, 2, 78, 2),
    Sketcher.Constraint("Tangent", 78, 1, 79, 1),
    Sketcher.Constraint("Tangent", 79, 2, 72, 2),
    Sketcher.Constraint("Horizontal", 0),
    Sketcher.Constraint("Vertical", 2),
    Sketcher.Constraint("Horizontal", 4),
    Sketcher.Constraint("Horizontal", 7),
    Sketcher.Constraint("Horizontal", 10),
    Sketcher.Constraint("Vertical", 12),
    Sketcher.Constraint("Horizontal", 14),
    Sketcher.Constraint("Horizontal", 17),
    Sketcher.Constraint("Horizontal", 21),
    Sketcher.Constraint("Vertical", 23),
    Sketcher.Constraint("Horizontal", 30),
    Sketcher.Constraint("Horizontal", 32),
    Sketcher.Constraint("Horizontal", 34),
    Sketcher.Constraint("Vertical", 44),
    Sketcher.Constraint("Horizontal", 46),
    Sketcher.Constraint("Horizontal", 52),
    Sketcher.Constraint("Horizontal", 59),
    Sketcher.Constraint("Horizontal", 61),
    Sketcher.Constraint("Vertical", 65),
    Sketcher.Constraint("Horizontal", 67),
    Sketcher.Constraint("Horizontal", 77),
    Sketcher.Constraint("Vertical", 79),
    Sketcher.Constraint("Coincident", 38, 3, -1, 1),
    Sketcher.Constraint("Coincident", 41, 3, -1, 1),
    Sketcher.Constraint("Coincident", 56, 3, -1, 1),
    Sketcher.Constraint("Equal", 1, 3),
    Sketcher.Constraint("Equal", 6, 8),
    Sketcher.Constraint("Equal", 5, 9),
    Sketcher.Constraint("Equal", 3, 11),
    Sketcher.Constraint("Equal", 11, 13),
    Sketcher.Constraint("Equal", 9, 15),
    Sketcher.Constraint("Equal", 8, 16),
    Sketcher.Constraint("Equal", 16, 18),
    Sketcher.Constraint("Equal", 15, 19),
    Sketcher.Constraint("Equal", 19, 22),
    Sketcher.Constraint("Equal", 22, 24),
    Sketcher.Constraint("Equal", 24, 26),
    Sketcher.Constraint("Equal", 26, 28),
    Sketcher.Constraint("Equal", 28, 33),
    Sketcher.Constraint("Equal", 33, 35),
    Sketcher.Constraint("Equal", 35, 37),
    Sketcher.Constraint("Equal", 37, 39),
    Sketcher.Constraint("Equal", 39, 43),
    Sketcher.Constraint("Equal", 43, 45),
    Sketcher.Constraint("Equal", 45, 47),
    Sketcher.Constraint("Equal", 47, 49),
    Sketcher.Constraint("Equal", 20, 50),
    Sketcher.Constraint("Equal", 49, 51),
    Sketcher.Constraint("Equal", 51, 53),
    Sketcher.Constraint("Equal", 53, 55),
    Sketcher.Constraint("Equal", 38, 56),
    Sketcher.Constraint("Equal", 55, 57),
    Sketcher.Constraint("Equal", 31, 60),
    Sketcher.Constraint("Equal", 50, 63),
    Sketcher.Constraint("Equal", 57, 64),
    Sketcher.Constraint("Equal", 64, 66),
    Sketcher.Constraint("Equal", 66, 68),
    Sketcher.Constraint("Equal", 68, 70),
    Sketcher.Constraint("Equal", 70, 72),
    Sketcher.Constraint("Equal", 72, 74),
    Sketcher.Constraint("Equal", 74, 76),
    Sketcher.Constraint("Equal", 76, 78),
    Sketcher.Constraint("Equal", 63, 80),
    Sketcher.Constraint("Symmetric", 1, 3, 11, 3, -1, 1),
    Sketcher.Constraint("Symmetric", 5, 3, 15, 3, -1, 1),
    Sketcher.Constraint("Symmetric", 8, 3, 18, 3, -1, 1),
    Sketcher.Constraint("Symmetric", 33, 3, 51, 3, -1, 1),
    Sketcher.Constraint("Symmetric", 29, 3, 60, 3, -1, 1),
    Sketcher.Constraint("Symmetric", 50, 3, 63, 3, -1, 1),
    Sketcher.Constraint("Symmetric", 43, 3, 64, 3, -1, 1),
    Sketcher.Constraint("Symmetric", 47, 3, 68, 3, -1, 1),
    Sketcher.Constraint("Symmetric", 49, 3, 70, 3, -1, 1),
    Sketcher.Constraint("Symmetric", 24, 3, 72, 3, -1, 1),
    Sketcher.Constraint("Symmetric", 26, 3, 74, 3, -1, 1),
    Sketcher.Constraint("Symmetric", 28, 3, 76, 3, -1, 1),
    Sketcher.Constraint("Symmetric", 20, 3, 80, 3, -1, 1),
    Sketcher.Constraint("Symmetric", 35, 1, 53, 1, -1, 1),
    Sketcher.Constraint("Symmetric", 5, 3, 9, 3, -2),
    Sketcher.Constraint("Symmetric", 20, 3, 63, 3, -2),
    Sketcher.Constraint("Symmetric", 24, 3, 64, 3, -2),
    Sketcher.Constraint("Symmetric", 28, 3, 68, 3, -2),
    Sketcher.Constraint("Symmetric", 26, 3, 70, 3, -2),
    Sketcher.Constraint("Symmetric", 36, 2, 39, 1, -2),
    Sketcher.Constraint("Perpendicular", 25, 36),
    Sketcher.Constraint("Perpendicular", 36, 40),
    Sketcher.Constraint("Perpendicular", 54, 58),
    Sketcher.Constraint("Parallel", 48, 69),
    Sketcher.Constraint("Parallel", 27, 75),
    Sketcher.Constraint("Horizontal", 18, 3, 29, 3),
    Sketcher.Constraint("Horizontal", 12, 2, 33, 1),
    Sketcher.Constraint("Horizontal", 27, 2, 68, 1),
    Sketcher.Constraint("Vertical", 31, 3, 60, 3),
    Sketcher.Constraint("Vertical", 29, 3, 62, 3),
    Sketcher.Constraint("Vertical", 3, 2, 22, 1),
    Sketcher.Constraint("Equal", 25, 36),
    Sketcher.Constraint("Radius", 5, Q("2 mm")),
    Sketcher.Constraint("Diameter", 41, Q("25.4 mm")),
    Sketcher.Constraint("Diameter", 20, Q("5.08 mm")),
    Sketcher.Constraint("DistanceX", 7, 1, 7, 2, Q("6 mm")),
    Sketcher.Constraint("DistanceX", 30, 1, 30, 2, Q("4 mm")),
    Sketcher.Constraint("Radius", 38, Q("15.875 mm")),
    Sketcher.Constraint("DistanceY", 6, 2, -1, 1, Q("31.1 mm")),
    Sketcher.Constraint("DistanceY", -1, 1, 31, 1, Q("25.1 mm")),
    Sketcher.Constraint("Radius", 1, Q("4.7625 mm")),
    Sketcher.Constraint("DistanceY", 2, 2, 2, 1, Q("47.371 mm")),
    Sketcher.Constraint("Radius", 6, Q("3.61875 mm")),
    Sketcher.Constraint("DistanceY", -1, 1, 22, 3, Q("5.175 mm")),
    Sketcher.Constraint("DistanceX", 1, 2, -1, 1, Q("28.448 mm")),
    Sketcher.Constraint("Distance", 27, Q("5.142699 mm")),
    Sketcher.Constraint("DistanceX", 21, 2, 21, 1, Q("3.485371 mm")),
    Sketcher.Constraint("DistanceX", 34, 1, 34, 2, Q("31.248361 mm")),
    Sketcher.Constraint("DistanceY", 23, 1, 23, 2, Q("10.449181 mm")),
    Sketcher.Constraint("DistanceX", 20, 3, -1, 1, Q("23.5712 mm")),
    Sketcher.Constraint("DistanceY", -1, 1, 20, 3, Q("23.5712 mm")),
])
pad3 = body.newObject("PartDesign::Pad", "Pad002")
pad3.Profile = sketch3
pad3.Length = 8

# Sketch on XZ plane
sketch4 = body.newObject("Sketcher::SketchObject", "Sketch003")
sketch4.AttachmentSupport = (doc.getObject("XZ_Plane"), [""])
sketch4.MapMode = "FlatFace"
sketch4.AttachmentOffset = App.Placement(App.Vector(0, 0, -30), App.Rotation())
sketch4.addGeometry([
    Part.Circle(App.Vector(5, -12.7, 0), App.Vector(0, 0, 1), 2.4),
    Part.Circle(App.Vector(5, 12.7, 0), App.Vector(0, 0, 1), 2.4),
], False)
sketch4.addConstraint([
    Sketcher.Constraint("Equal", 0, 1),
    Sketcher.Constraint("Symmetric", 0, 3, 1, 3, -1),
    Sketcher.Constraint("DistanceX", -1, 1, 0, 3, Q("5 mm")),
    Sketcher.Constraint("Diameter", 0, Q("4.7625 mm")),
    Sketcher.Constraint("DistanceY", 0, 3, -1, 1, Q("12.7 mm")),
])
pocket1 = body.newObject("PartDesign::Pocket", "Pocket")
pocket1.Profile = sketch4
pocket1.Length = 70
pocket1.Reversed = True

doc.recompute()
